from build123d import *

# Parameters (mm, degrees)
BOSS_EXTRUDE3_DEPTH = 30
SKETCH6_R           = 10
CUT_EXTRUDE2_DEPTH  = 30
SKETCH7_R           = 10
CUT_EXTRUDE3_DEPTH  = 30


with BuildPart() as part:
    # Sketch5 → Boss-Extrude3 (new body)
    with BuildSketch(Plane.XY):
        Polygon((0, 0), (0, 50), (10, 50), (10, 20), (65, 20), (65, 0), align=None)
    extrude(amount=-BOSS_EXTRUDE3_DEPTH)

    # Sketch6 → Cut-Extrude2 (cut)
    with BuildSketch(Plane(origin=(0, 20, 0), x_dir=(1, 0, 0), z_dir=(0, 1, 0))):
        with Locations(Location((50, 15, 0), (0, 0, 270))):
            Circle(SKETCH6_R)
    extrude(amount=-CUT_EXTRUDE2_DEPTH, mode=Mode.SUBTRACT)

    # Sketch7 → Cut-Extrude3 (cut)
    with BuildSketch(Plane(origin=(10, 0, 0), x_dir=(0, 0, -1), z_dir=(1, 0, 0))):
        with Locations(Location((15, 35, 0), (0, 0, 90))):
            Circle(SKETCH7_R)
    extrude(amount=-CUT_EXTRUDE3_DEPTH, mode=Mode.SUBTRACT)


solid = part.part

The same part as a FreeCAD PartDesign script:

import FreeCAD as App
import Part
import Sketcher

V = App.Vector


def add_polygon(sketch, points):
    """Adds a closed chain of lines whose ends are joined by coincident constraints."""
    first, n = sketch.GeometryCount, len(points)
    for a, b in zip(points, points[1:] + points[:1]):
        sketch.addGeometry(Part.LineSegment(App.Vector(*a, 0), App.Vector(*b, 0)), False)
    for i in range(n):
        sketch.addConstraint(Sketcher.Constraint("Coincident", first + i, 2, first + (i + 1) % n, 1))

doc = App.newDocument("Part")
body = doc.addObject("PartDesign::Body", "Body")

# Sketch on XY plane
sketch1 = doc.addObject("Sketcher::SketchObject", "Sketch")
body.addObject(sketch1)
sketch1.AttachmentSupport = (doc.XY_Plane, [""])
sketch1.MapMode = "FlatFace"
add_polygon(sketch1, [(0, 50), (0, 0), (65, 0), (65, 20), (10, 20), (10, 50)])  # lines 0-5
sketch1.addConstraint([
    Sketcher.Constraint("Vertical", 0),
    Sketcher.Constraint("Horizontal", 1),
    Sketcher.Constraint("Vertical", 2),
    Sketcher.Constraint("Horizontal", 3),
    Sketcher.Constraint("Vertical", 4),
    Sketcher.Constraint("Horizontal", 5),
    Sketcher.Constraint("Coincident", 0, 2, -1, 1),
    Sketcher.Constraint("DistanceX", 1, 1, 1, 2, 65.0),
    Sketcher.Constraint("DistanceX", 3, 2, 3, 1, 55.0),
    Sketcher.Constraint("DistanceY", 0, 2, 0, 1, 50.0),
    Sketcher.Constraint("DistanceY", 2, 1, 2, 2, 20.0),
])
pad1 = doc.addObject("PartDesign::Pad", "Pad")
body.addObject(pad1)
pad1.Profile = sketch1
pad1.Length = 30
pad1.Reversed = True

# Sketch on XZ plane
sketch2 = doc.addObject("Sketcher::SketchObject", "Sketch001")
body.addObject(sketch2)
sketch2.AttachmentSupport = (doc.XZ_Plane, [""])
sketch2.MapMode = "FlatFace"
sketch2.AttachmentOffset = App.Placement(V(0, 0, -20), App.Rotation())
sketch2.addGeometry(Part.Circle(V(50, -15, 0), V(0, 0, 1), 10), False)
sketch2.addConstraint([
    Sketcher.Constraint("Diameter", 0, 20.0),
    Sketcher.Constraint("DistanceX", -1, 1, 0, 3, 50.0),
    Sketcher.Constraint("DistanceY", 0, 3, -1, 1, 15.0),
])
pocket1 = doc.addObject("PartDesign::Pocket", "Pocket")
body.addObject(pocket1)
pocket1.Profile = sketch2
pocket1.Length = 30
pocket1.Reversed = True

# Sketch on YZ plane
sketch3 = doc.addObject("Sketcher::SketchObject", "Sketch002")
body.addObject(sketch3)
sketch3.AttachmentSupport = (doc.YZ_Plane, [""])
sketch3.MapMode = "FlatFace"
sketch3.AttachmentOffset = App.Placement(V(0, 0, 10), App.Rotation())
sketch3.addGeometry(Part.Circle(V(35, -15, 0), V(0, 0, 1), 10), False)
sketch3.addConstraint([
    Sketcher.Constraint("Diameter", 0, 20.0),
    Sketcher.Constraint("DistanceX", -1, 1, 0, 3, 35.0),
    Sketcher.Constraint("DistanceY", 0, 3, -1, 1, 15.0),
])
pocket2 = doc.addObject("PartDesign::Pocket", "Pocket001")
body.addObject(pocket2)
pocket2.Profile = sketch3
pocket2.Length = 30

doc.recompute()
